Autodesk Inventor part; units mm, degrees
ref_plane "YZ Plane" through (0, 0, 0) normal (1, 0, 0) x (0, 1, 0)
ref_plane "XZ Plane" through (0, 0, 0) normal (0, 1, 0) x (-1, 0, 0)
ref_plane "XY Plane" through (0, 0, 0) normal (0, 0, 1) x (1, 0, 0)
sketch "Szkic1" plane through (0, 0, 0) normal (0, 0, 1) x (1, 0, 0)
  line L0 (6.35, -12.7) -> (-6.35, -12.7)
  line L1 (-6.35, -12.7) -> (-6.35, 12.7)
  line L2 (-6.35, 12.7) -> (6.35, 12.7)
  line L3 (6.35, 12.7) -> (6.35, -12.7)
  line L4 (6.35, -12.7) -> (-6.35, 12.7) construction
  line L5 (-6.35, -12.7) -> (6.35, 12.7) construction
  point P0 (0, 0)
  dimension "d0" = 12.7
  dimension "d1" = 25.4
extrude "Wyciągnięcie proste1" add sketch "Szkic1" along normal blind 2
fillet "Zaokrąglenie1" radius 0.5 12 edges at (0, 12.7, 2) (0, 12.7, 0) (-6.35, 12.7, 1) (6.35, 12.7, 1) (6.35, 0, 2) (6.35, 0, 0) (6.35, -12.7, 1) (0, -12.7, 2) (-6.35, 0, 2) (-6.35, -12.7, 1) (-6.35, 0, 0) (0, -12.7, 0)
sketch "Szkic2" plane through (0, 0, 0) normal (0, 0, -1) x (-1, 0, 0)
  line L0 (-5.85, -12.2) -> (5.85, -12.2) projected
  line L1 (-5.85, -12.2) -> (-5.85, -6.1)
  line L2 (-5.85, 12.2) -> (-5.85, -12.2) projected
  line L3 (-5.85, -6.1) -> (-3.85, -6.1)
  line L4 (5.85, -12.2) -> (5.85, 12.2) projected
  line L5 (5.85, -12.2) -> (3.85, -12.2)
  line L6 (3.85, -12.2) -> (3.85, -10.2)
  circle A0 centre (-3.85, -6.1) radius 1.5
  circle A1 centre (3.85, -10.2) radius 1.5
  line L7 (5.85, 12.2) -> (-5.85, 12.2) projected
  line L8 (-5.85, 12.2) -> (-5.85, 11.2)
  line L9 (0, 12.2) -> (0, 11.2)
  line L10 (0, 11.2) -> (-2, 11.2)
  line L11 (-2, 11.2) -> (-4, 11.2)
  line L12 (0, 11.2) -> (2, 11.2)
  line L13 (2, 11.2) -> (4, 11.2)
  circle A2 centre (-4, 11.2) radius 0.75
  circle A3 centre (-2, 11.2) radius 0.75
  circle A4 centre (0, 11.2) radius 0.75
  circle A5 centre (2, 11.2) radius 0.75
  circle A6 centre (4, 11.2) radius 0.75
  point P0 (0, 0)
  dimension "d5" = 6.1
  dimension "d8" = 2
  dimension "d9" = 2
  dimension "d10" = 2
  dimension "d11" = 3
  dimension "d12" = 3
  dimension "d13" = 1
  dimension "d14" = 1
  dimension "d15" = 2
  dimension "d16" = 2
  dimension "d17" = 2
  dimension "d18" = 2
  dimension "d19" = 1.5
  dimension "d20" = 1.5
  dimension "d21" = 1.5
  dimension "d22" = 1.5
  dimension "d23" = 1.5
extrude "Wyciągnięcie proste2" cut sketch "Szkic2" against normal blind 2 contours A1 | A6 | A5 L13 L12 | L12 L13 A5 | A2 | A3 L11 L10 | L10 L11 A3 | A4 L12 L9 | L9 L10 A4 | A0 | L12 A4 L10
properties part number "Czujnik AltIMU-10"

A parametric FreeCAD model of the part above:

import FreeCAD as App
import Part
import Sketcher
from FreeCAD import Vector


def add_polygon(sketch, points):
    """Adds a closed chain of lines whose ends are joined by coincident constraints."""
    first, n = sketch.GeometryCount, len(points)
    for a, b in zip(points, points[1:] + points[:1]):
        sketch.addGeometry(Part.LineSegment(App.Vector(*a, 0), App.Vector(*b, 0)), False)
    for i in range(n):
        sketch.addConstraint(Sketcher.Constraint("Coincident", first + i, 2, first + (i + 1) % n, 1))

doc = App.newDocument("Part")
params = doc.addObject("Spreadsheet::Sheet", "Params")
for row, (alias, value) in enumerate([
    ("sketch1_width", "12.7 mm"),
    ("sketch1_height", "25.4 mm"),
    ("pad1_length", "2 mm"),
    ("fillet_radius", "0.5 mm"),
    ("sketch2_diameter", "3 mm"),
    ("sketch2_diameter2", "1.5 mm"),
    ("pocket1_length", "2 mm"),
], start=1):
    params.set(f"A{row}", alias)
    params.set(f"B{row}", "=" + value)
    params.setAlias(f"B{row}", alias)

body = doc.addObject("PartDesign::Body", "Body")

sketch1 = doc.addObject("Sketcher::SketchObject", "Sketch")
body.addObject(sketch1)
sketch1.AttachmentSupport = (doc.XY_Plane, [""])
sketch1.MapMode = "FlatFace"
add_polygon(sketch1, [(-6.35, -12.7), (6.35, -12.7), (6.35, 12.7), (-6.35, 12.7)])
sketch1.addConstraint([
    Sketcher.Constraint("Horizontal", 0),
    Sketcher.Constraint("Vertical", 1),
    Sketcher.Constraint("Horizontal", 2),
    Sketcher.Constraint("Vertical", 3),
    Sketcher.Constraint("Symmetric", 0, 2, 2, 2, -1, 1),
    Sketcher.Constraint("DistanceX", 0, 1, 0, 2, 12.7),
    Sketcher.Constraint("DistanceY", 1, 1, 1, 2, 25.4),
])
sketch1.setExpression("Constraints[9]", "Params.sketch1_width")
sketch1.setExpression("Constraints[10]", "Params.sketch1_height")
pad1 = doc.addObject("PartDesign::Pad", "Pad")
body.addObject(pad1)
pad1.Profile = sketch1
pad1.setExpression("Length", "Params.pad1_length")
doc.recompute()

fillet = doc.addObject("PartDesign::Fillet", "Fillet")
body.addObject(fillet)
fillet.Base = (pad1, ["Edge1"])
fillet.UseAllEdges = True
fillet.setExpression("Radius", "Params.fillet_radius")

sketch2 = doc.addObject("Sketcher::SketchObject", "Sketch001")
body.addObject(sketch2)
sketch2.AttachmentSupport = (doc.XY_Plane, [""])
sketch2.MapMode = "FlatFace"
sketch2.addGeometry([
    Part.Circle(Vector(-3.85, -10.2, 0), Vector(0, 0, 1), 1.5),
    Part.Circle(Vector(-4, 11.2, 0), Vector(0, 0, 1), 0.75),
    Part.Circle(Vector(-2, 11.2, 0), Vector(0, 0, 1), 0.75),
    Part.Circle(Vector(4, 11.2, 0), Vector(0, 0, 1), 0.75),
    Part.Circle(Vector(2, 11.2, 0), Vector(0, 0, 1), 0.75),
    Part.Circle(Vector(0, 11.2, 0), Vector(0, 0, 1), 0.75),
    Part.Circle(Vector(3.85, -6.1, 0), Vector(0, 0, 1), 1.5),
], False)
sketch2.addConstraint([
    Sketcher.Constraint("Equal", 1, 2),
    Sketcher.Constraint("Equal", 2, 3),
    Sketcher.Constraint("Equal", 3, 4),
    Sketcher.Constraint("Equal", 4, 5),
    Sketcher.Constraint("Equal", 0, 6),
    Sketcher.Constraint("Symmetric", 1, 3, 3, 3, -2),
    Sketcher.Constraint("Symmetric", 2, 3, 4, 3, -2),
    Sketcher.Constraint("PointOnObject", 5, 3, -2),
    Sketcher.Constraint("Horizontal", 1, 3, 2, 3),
    Sketcher.Constraint("Horizontal", 4, 3, 5, 3),
    Sketcher.Constraint("Diameter", 0, 3.0),
    Sketcher.Constraint("Diameter", 1, 1.5),
    Sketcher.Constraint("DistanceX", 2, 3, -1, 1, 2.0),
    Sketcher.Constraint("DistanceX", 1, 3, 2, 3, 2.0),
    Sketcher.Constraint("DistanceY", 6, 3, -1, 1, 6.1),
    Sketcher.Constraint("DistanceY", 0, 3, -1, 1, 10.2),
    Sketcher.Constraint("DistanceY", -1, 1, 1, 3, 11.2),
    Sketcher.Constraint("DistanceX", 0, 3, 6, 3, 7.7),
    Sketcher.Constraint("DistanceX", 0, 3, -1, 1, 3.85),
])
sketch2.setExpression("Constraints[10]", "Params.sketch2_diameter")
sketch2.setExpression("Constraints[11]", "Params.sketch2_diameter2")
pocket1 = doc.addObject("PartDesign::Pocket", "Pocket")
body.addObject(pocket1)
pocket1.Profile = sketch2
pocket1.setExpression("Length", "Params.pocket1_length")
pocket1.Reversed = True

doc.recompute()
